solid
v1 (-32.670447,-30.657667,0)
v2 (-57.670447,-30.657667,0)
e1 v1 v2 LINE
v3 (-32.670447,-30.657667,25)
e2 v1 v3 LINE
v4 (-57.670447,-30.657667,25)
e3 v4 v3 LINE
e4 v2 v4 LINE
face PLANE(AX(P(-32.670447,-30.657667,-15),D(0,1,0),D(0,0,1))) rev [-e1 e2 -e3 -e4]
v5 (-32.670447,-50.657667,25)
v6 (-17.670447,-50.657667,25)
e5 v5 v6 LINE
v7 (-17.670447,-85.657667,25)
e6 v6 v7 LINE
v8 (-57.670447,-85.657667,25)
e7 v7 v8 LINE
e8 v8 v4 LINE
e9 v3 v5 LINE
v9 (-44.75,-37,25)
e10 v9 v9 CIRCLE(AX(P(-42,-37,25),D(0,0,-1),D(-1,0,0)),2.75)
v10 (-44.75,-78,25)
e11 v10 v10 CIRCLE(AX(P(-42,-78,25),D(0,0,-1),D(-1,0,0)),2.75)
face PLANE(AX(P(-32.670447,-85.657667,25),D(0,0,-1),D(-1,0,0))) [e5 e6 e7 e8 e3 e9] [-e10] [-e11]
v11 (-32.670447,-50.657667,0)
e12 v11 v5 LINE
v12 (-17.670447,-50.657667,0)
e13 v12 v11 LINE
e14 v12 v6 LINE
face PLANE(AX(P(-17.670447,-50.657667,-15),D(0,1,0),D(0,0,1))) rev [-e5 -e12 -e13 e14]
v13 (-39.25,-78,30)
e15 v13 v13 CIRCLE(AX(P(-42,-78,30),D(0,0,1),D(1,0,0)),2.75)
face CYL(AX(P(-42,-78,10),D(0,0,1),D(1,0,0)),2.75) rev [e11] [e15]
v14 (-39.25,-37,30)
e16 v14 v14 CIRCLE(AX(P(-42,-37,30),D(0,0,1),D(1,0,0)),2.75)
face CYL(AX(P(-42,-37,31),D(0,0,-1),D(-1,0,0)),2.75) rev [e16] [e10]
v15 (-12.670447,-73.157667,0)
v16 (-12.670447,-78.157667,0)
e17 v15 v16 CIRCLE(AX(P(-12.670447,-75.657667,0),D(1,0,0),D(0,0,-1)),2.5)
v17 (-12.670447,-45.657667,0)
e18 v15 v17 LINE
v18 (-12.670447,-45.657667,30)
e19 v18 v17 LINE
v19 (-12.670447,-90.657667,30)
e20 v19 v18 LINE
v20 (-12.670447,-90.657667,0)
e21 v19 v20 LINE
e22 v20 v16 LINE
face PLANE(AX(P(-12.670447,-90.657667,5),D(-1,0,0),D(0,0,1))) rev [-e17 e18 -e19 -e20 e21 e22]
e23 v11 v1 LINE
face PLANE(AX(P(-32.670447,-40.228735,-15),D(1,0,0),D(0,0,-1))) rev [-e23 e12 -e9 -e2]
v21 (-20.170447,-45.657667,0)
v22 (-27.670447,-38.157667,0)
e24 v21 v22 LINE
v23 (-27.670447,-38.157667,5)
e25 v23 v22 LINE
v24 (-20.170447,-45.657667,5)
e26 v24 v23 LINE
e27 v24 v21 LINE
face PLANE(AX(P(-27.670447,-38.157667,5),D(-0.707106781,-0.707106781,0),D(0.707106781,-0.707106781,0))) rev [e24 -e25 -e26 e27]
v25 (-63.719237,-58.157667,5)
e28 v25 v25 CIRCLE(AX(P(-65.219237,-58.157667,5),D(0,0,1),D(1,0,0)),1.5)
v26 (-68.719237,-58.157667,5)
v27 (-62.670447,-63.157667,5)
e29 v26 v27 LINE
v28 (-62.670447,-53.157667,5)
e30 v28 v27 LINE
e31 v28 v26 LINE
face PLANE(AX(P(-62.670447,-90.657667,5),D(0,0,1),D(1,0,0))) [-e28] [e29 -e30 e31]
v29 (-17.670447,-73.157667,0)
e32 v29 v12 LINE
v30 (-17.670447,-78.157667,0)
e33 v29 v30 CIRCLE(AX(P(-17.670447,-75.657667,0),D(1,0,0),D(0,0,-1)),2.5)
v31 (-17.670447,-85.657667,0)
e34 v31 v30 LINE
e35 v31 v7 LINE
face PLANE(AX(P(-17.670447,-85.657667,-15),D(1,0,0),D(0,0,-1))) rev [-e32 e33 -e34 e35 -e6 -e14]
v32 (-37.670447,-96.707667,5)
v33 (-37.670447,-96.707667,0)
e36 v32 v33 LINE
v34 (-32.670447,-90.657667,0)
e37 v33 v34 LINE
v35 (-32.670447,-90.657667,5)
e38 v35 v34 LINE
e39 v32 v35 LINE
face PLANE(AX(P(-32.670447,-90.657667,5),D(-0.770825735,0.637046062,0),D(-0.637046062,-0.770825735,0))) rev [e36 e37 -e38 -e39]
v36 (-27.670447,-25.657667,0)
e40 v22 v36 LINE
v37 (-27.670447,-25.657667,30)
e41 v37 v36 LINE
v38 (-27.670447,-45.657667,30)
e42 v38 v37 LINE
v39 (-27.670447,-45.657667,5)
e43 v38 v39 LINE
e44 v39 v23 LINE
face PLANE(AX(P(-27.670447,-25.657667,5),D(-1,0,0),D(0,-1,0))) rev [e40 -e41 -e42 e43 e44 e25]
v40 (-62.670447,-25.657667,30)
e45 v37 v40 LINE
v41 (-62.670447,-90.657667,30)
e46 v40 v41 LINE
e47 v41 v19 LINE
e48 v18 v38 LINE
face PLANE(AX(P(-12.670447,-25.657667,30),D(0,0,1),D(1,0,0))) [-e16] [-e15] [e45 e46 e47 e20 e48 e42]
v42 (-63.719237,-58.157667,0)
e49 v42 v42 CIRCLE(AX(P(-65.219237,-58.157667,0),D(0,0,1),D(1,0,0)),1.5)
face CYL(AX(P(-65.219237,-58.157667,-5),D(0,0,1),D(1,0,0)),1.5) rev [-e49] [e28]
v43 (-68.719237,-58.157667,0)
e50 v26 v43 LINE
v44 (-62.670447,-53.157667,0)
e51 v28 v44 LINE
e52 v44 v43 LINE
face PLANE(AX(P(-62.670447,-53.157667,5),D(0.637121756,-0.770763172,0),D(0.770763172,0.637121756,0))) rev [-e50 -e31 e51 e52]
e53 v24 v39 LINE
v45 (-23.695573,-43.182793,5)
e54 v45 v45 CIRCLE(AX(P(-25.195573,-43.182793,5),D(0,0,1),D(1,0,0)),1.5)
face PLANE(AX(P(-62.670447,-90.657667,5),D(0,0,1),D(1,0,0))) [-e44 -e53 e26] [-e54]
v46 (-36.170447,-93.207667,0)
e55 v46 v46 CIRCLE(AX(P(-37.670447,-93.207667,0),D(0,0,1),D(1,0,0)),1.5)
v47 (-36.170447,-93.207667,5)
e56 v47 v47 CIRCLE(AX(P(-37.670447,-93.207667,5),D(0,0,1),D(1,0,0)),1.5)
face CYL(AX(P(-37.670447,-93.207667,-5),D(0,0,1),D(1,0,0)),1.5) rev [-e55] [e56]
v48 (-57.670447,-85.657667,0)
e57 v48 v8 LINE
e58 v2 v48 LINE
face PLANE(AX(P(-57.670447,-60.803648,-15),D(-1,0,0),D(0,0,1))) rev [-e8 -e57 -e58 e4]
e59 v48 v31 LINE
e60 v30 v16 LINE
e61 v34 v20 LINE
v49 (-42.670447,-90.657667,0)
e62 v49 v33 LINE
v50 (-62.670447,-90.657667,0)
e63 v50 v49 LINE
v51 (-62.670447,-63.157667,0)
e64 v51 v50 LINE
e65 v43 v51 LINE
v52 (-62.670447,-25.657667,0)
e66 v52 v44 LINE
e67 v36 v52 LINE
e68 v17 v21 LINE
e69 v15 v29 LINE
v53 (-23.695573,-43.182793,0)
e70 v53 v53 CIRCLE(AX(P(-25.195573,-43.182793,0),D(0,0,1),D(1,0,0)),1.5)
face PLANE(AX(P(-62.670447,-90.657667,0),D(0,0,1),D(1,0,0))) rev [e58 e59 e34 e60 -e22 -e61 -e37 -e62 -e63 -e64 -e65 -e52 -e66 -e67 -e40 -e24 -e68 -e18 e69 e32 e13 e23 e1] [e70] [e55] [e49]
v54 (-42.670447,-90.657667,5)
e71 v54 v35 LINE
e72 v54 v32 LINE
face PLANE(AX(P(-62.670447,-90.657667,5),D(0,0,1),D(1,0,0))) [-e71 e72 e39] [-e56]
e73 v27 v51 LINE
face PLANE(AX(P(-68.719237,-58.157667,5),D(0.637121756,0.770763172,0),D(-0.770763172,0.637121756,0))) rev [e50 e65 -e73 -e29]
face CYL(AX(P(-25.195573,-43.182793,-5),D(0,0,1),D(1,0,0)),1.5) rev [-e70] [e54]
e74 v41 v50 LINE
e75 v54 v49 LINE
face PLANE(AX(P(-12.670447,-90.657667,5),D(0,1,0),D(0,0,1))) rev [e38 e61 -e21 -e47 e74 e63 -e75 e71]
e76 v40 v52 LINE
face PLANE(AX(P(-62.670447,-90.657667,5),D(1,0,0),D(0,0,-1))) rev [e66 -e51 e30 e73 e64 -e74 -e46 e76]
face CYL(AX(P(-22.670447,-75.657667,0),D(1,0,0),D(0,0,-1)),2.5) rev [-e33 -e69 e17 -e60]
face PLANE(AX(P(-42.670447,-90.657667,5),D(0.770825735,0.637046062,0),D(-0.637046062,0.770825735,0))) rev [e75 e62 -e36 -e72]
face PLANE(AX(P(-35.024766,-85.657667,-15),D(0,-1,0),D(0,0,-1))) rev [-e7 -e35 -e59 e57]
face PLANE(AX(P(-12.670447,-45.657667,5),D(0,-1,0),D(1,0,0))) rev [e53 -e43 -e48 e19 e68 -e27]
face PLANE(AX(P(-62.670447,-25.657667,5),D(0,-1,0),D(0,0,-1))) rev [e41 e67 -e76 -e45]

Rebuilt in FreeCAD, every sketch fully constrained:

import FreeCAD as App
import Part
import Sketcher

V = App.Vector
Q = App.Units.Quantity

doc = App.newDocument("Part")
body = doc.addObject("PartDesign::Body", "Body")

sketch1 = body.newObject("Sketcher::SketchObject", "Sketch")
sketch1.AttachmentSupport = (doc.getObject("XY_Plane"), [""])
sketch1.MapMode = "FlatFace"
sketch1.addGeometry([
    Part.LineSegment(V(-28, -38, 0), V(-28, -26, 0)),
    Part.LineSegment(V(-28, -26, 0), V(-63, -26, 0)),
    Part.LineSegment(V(-63, -26, 0), V(-63, -53, 0)),
    Part.LineSegment(V(-63, -53, 0), V(-69, -58, 0)),
    Part.LineSegment(V(-69, -58, 0), V(-63, -63, 0)),
    Part.LineSegment(V(-63, -63, 0), V(-63, -91, 0)),
    Part.LineSegment(V(-63, -91, 0), V(-43, -91, 0)),
    Part.LineSegment(V(-43, -91, 0), V(-38, -97, 0)),
    Part.LineSegment(V(-38, -97, 0), V(-33, -91, 0)),
    Part.LineSegment(V(-33, -91, 0), V(-13, -91, 0)),
    Part.LineSegment(V(-13, -91, 0), V(-13, -46, 0)),
    Part.LineSegment(V(-13, -46, 0), V(-20, -46, 0)),
    Part.LineSegment(V(-20, -46, 0), V(-28, -38, 0)),
], False)
sketch1.addConstraint([
    Sketcher.Constraint("Coincident", 0, 2, 1, 1),
    Sketcher.Constraint("Coincident", 1, 2, 2, 1),
    Sketcher.Constraint("Coincident", 2, 2, 3, 1),
    Sketcher.Constraint("Coincident", 3, 2, 4, 1),
    Sketcher.Constraint("Coincident", 4, 2, 5, 1),
    Sketcher.Constraint("Coincident", 5, 2, 6, 1),
    Sketcher.Constraint("Coincident", 6, 2, 7, 1),
    Sketcher.Constraint("Coincident", 7, 2, 8, 1),
    Sketcher.Constraint("Coincident", 8, 2, 9, 1),
    Sketcher.Constraint("Coincident", 9, 2, 10, 1),
    Sketcher.Constraint("Coincident", 10, 2, 11, 1),
    Sketcher.Constraint("Coincident", 11, 2, 12, 1),
    Sketcher.Constraint("Coincident", 12, 2, 0, 1),
    Sketcher.Constraint("Vertical", 0),
    Sketcher.Constraint("Horizontal", 1),
    Sketcher.Constraint("Vertical", 2),
    Sketcher.Constraint("Vertical", 5),
    Sketcher.Constraint("Horizontal", 6),
    Sketcher.Constraint("Horizontal", 9),
    Sketcher.Constraint("Vertical", 10),
    Sketcher.Constraint("Horizontal", 11),
    Sketcher.Constraint("Horizontal", 6, 2, 8, 2),
    Sketcher.Constraint("Vertical", 2, 2, 4, 2),
    Sketcher.Constraint("Equal", 6, 9),
    Sketcher.Constraint("Equal", 2, 5),
    Sketcher.Constraint("Equal", 3, 4),
    Sketcher.Constraint("Equal", 7, 8),
    Sketcher.Constraint("DistanceX", 1, 2, 1, 1, 35.0),
    Sketcher.Constraint("DistanceX", 6, 1, 6, 2, 20.0),
    Sketcher.Constraint("DistanceY", 10, 1, 10, 2, 45.0),
    Sketcher.Constraint("Angle", 12, Q("135 deg")),
    Sketcher.Constraint("DistanceX", 11, 2, 11, 1, 7.5),
    Sketcher.Constraint("DistanceY", 0, 1, 0, 2, 12.5),
    Sketcher.Constraint("DistanceY", 2, 2, 2, 1, 27.5),
    Sketcher.Constraint("DistanceY", 3, 2, 2, 2, 5.0),
    Sketcher.Constraint("DistanceY", 7, 2, 6, 2, 6.05),
    Sketcher.Constraint("DistanceX", 3, 2, 2, 2, 6.04879),
    Sketcher.Constraint("DistanceX", 0, 2, -1, 1, 27.670447),
    Sketcher.Constraint("DistanceY", 0, 2, -1, 1, 25.657667),
])
pad1 = body.newObject("PartDesign::Pad", "Pad")
pad1.Profile = sketch1
pad1.Length = 5

sketch2 = body.newObject("Sketcher::SketchObject", "Sketch001")
sketch2.AttachmentSupport = (doc.getObject("XY_Plane"), [""])
sketch2.MapMode = "FlatFace"
sketch2.AttachmentOffset = App.Placement(V(0, 0, 5), App.Rotation())
sketch2.addGeometry([
    Part.Circle(V(-65.2, -58.2, 0), V(0, 0, 1), 1.5),
    Part.Circle(V(-37.7, -93.2, 0), V(0, 0, 1), 1.5),
    Part.Circle(V(-25.2, -43.2, 0), V(0, 0, 1), 1.5),
], False)
sketch2.addConstraint([
    Sketcher.Constraint("Equal", 0, 1),
    Sketcher.Constraint("Equal", 1, 2),
    Sketcher.Constraint("Diameter", 0, 3.0),
    Sketcher.Constraint("DistanceY", 1, 3, 0, 3, 35.05),
    Sketcher.Constraint("DistanceX", 0, 3, 1, 3, 27.54879),
    Sketcher.Constraint("DistanceX", 0, 3, -1, 1, 65.219237),
    Sketcher.Constraint("DistanceY", 0, 3, -1, 1, 58.157667),
    Sketcher.Constraint("DistanceX", 2, 3, -1, 1, 25.195573),
    Sketcher.Constraint("DistanceY", 2, 3, -1, 1, 43.182793),
])
pocket1 = body.newObject("PartDesign::Pocket", "Pocket")
pocket1.Profile = sketch2
pocket1.Length = 10

sketch3 = body.newObject("Sketcher::SketchObject", "Sketch002")
sketch3.AttachmentSupport = (doc.getObject("XY_Plane"), [""])
sketch3.MapMode = "FlatFace"
sketch3.AttachmentOffset = App.Placement(V(0, 0, 5), App.Rotation())
sketch3.addGeometry([
    Part.LineSegment(V(-63, -26, 0), V(-63, -91, 0)),
    Part.LineSegment(V(-63, -91, 0), V(-13, -91, 0)),
    Part.LineSegment(V(-13, -91, 0), V(-13, -46, 0)),
    Part.LineSegment(V(-13, -46, 0), V(-28, -46, 0)),
    Part.LineSegment(V(-28, -46, 0), V(-28, -26, 0)),
    Part.LineSegment(V(-28, -26, 0), V(-63, -26, 0)),
], False)
sketch3.addConstraint([
    Sketcher.Constraint("Coincident", 0, 2, 1, 1),
    Sketcher.Constraint("Coincident", 1, 2, 2, 1),
    Sketcher.Constraint("Coincident", 2, 2, 3, 1),
    Sketcher.Constraint("Coincident", 3, 2, 4, 1),
    Sketcher.Constraint("Coincident", 4, 2, 5, 1),
    Sketcher.Constraint("Coincident", 5, 2, 0, 1),
    Sketcher.Constraint("Vertical", 0),
    Sketcher.Constraint("Horizontal", 1),
    Sketcher.Constraint("Vertical", 2),
    Sketcher.Constraint("Horizontal", 3),
    Sketcher.Constraint("Vertical", 4),
    Sketcher.Constraint("Horizontal", 5),
    Sketcher.Constraint("DistanceX", 1, 1, 1, 2, 50.0),
    Sketcher.Constraint("DistanceX", 3, 2, 3, 1, 15.0),
    Sketcher.Constraint("DistanceY", 0, 2, 0, 1, 65.0),
    Sketcher.Constraint("DistanceY", 2, 1, 2, 2, 45.0),
    Sketcher.Constraint("DistanceX", 0, 2, -1, 1, 62.670447),
    Sketcher.Constraint("DistanceY", 0, 2, -1, 1, 90.657667),
])
pad2 = body.newObject("PartDesign::Pad", "Pad001")
pad2.Profile = sketch3
pad2.Length = 25

sketch4 = body.newObject("Sketcher::SketchObject", "Sketch003")
sketch4.AttachmentSupport = (doc.getObject("XY_Plane"), [""])
sketch4.MapMode = "FlatFace"
sketch4.AttachmentOffset = App.Placement(V(0, 0, 5), App.Rotation())
sketch4.addGeometry([
    Part.LineSegment(V(-58, -86, 0), V(-18, -86, 0)),
    Part.LineSegment(V(-18, -86, 0), V(-18, -51, 0)),
    Part.LineSegment(V(-18, -51, 0), V(-33, -51, 0)),
    Part.LineSegment(V(-33, -51, 0), V(-33, -31, 0)),
    Part.LineSegment(V(-33, -31, 0), V(-58, -31, 0)),
    Part.LineSegment(V(-58, -31, 0), V(-58, -86, 0)),
], False)
sketch4.addConstraint([
    Sketcher.Constraint("Coincident", 0, 2, 1, 1),
    Sketcher.Constraint("Coincident", 1, 2, 2, 1),
    Sketcher.Constraint("Coincident", 2, 2, 3, 1),
    Sketcher.Constraint("Coincident", 3, 2, 4, 1),
    Sketcher.Constraint("Coincident", 4, 2, 5, 1),
    Sketcher.Constraint("Coincident", 5, 2, 0, 1),
    Sketcher.Constraint("Horizontal", 0),
    Sketcher.Constraint("Vertical", 1),
    Sketcher.Constraint("Horizontal", 2),
    Sketcher.Constraint("Vertical", 3),
    Sketcher.Constraint("Horizontal", 4),
    Sketcher.Constraint("Vertical", 5),
    Sketcher.Constraint("DistanceX", 0, 1, 0, 2, 40.0),
    Sketcher.Constraint("DistanceX", 2, 2, 2, 1, 15.0),
    Sketcher.Constraint("DistanceY", 1, 1, 1, 2, 35.0),
    Sketcher.Constraint("DistanceY", 3, 1, 3, 2, 20.0),
    Sketcher.Constraint("DistanceX", 0, 2, -1, 1, 17.670447),
    Sketcher.Constraint("DistanceY", 0, 2, -1, 1, 85.657667),
])
pocket2 = body.newObject("PartDesign::Pocket", "Pocket001")
pocket2.Profile = sketch4
pocket2.Length = 20

sketch5 = body.newObject("Sketcher::SketchObject", "Sketch004")
sketch5.AttachmentSupport = (doc.getObject("XY_Plane"), [""])
sketch5.MapMode = "FlatFace"
sketch5.AttachmentOffset = App.Placement(V(0, 0, 5), App.Rotation())
sketch5.addGeometry([
    Part.LineSegment(V(-58, -31, 0), V(-33, -31, 0)),
    Part.LineSegment(V(-33, -31, 0), V(-33, -51, 0)),
    Part.LineSegment(V(-33, -51, 0), V(-18, -51, 0)),
    Part.LineSegment(V(-18, -51, 0), V(-18, -86, 0)),
    Part.LineSegment(V(-18, -86, 0), V(-58, -86, 0)),
    Part.LineSegment(V(-58, -86, 0), V(-58, -31, 0)),
], False)
sketch5.addConstraint([
    Sketcher.Constraint("Coincident", 0, 2, 1, 1),
    Sketcher.Constraint("Coincident", 1, 2, 2, 1),
    Sketcher.Constraint("Coincident", 2, 2, 3, 1),
    Sketcher.Constraint("Coincident", 3, 2, 4, 1),
    Sketcher.Constraint("Coincident", 4, 2, 5, 1),
    Sketcher.Constraint("Coincident", 5, 2, 0, 1),
    Sketcher.Constraint("Horizontal", 0),
    Sketcher.Constraint("Vertical", 1),
    Sketcher.Constraint("Horizontal", 2),
    Sketcher.Constraint("Vertical", 3),
    Sketcher.Constraint("Horizontal", 4),
    Sketcher.Constraint("Vertical", 5),
    Sketcher.Constraint("DistanceX", 0, 1, 0, 2, 25.0),
    Sketcher.Constraint("DistanceX", 2, 1, 2, 2, 15.0),
    Sketcher.Constraint("DistanceY", 1, 2, 1, 1, 20.0),
    Sketcher.Constraint("DistanceY", 3, 2, 3, 1, 35.0),
    Sketcher.Constraint("DistanceX", 0, 2, -1, 1, 32.670447),
    Sketcher.Constraint("DistanceY", 0, 2, -1, 1, 30.657667),
])
pocket3 = body.newObject("PartDesign::Pocket", "Pocket002")
pocket3.Profile = sketch5
pocket3.Length = 20
pocket3.Reversed = True

sketch6 = body.newObject("Sketcher::SketchObject", "Sketch005")
sketch6.AttachmentSupport = (doc.getObject("XY_Plane"), [""])
sketch6.MapMode = "FlatFace"
sketch6.AttachmentOffset = App.Placement(V(0, 0, 30), App.Rotation())
sketch6.addGeometry([
    Part.Circle(V(45, -75.7, 0), V(0, 0, 1), 2.8),
    Part.Circle(V(-42, -78, 0), V(0, 0, 1), 2.8),
], False)
sketch6.addConstraint([
    Sketcher.Constraint("Equal", 0, 1),
    Sketcher.Constraint("Diameter", 0, 5.5),
    Sketcher.Constraint("DistanceX", -1, 1, 0, 3, 45.0),
    Sketcher.Constraint("DistanceX", 1, 3, -1, 1, 42.0),
    Sketcher.Constraint("DistanceY", 1, 3, -1, 1, 78.0),
    Sketcher.Constraint("DistanceY", 0, 3, -1, 1, 75.657667),
])
pocket4 = body.newObject("PartDesign::Pocket", "Pocket003")
pocket4.Profile = sketch6
pocket4.Length = 20

sketch7 = body.newObject("Sketcher::SketchObject", "Sketch006")
sketch7.AttachmentSupport = (doc.getObject("YZ_Plane"), [""])
sketch7.MapMode = "FlatFace"
sketch7.AttachmentOffset = App.Placement(V(0, 0, -12.670447), App.Rotation())
sketch7.addGeometry(Part.Circle(V(-75.7, 0, 0), V(0, 0, 1), 2.5), False)
sketch7.addConstraint([
    Sketcher.Constraint("PointOnObject", 0, 3, -1),
    Sketcher.Constraint("Diameter", 0, 5.0),
    Sketcher.Constraint("DistanceX", 0, 3, -1, 1, 75.657667),
])
pocket5 = body.newObject("PartDesign::Pocket", "Pocket004")
pocket5.Profile = sketch7
pocket5.Length = 10

sketch8 = body.newObject("Sketcher::SketchObject", "Sketch007")
sketch8.AttachmentSupport = (doc.getObject("XY_Plane"), [""])
sketch8.MapMode = "FlatFace"
sketch8.AttachmentOffset = App.Placement(V(0, 0, 25), App.Rotation())
sketch8.addGeometry(Part.Circle(V(-42, -37, 0), V(0, 0, 1), 2.8), False)
sketch8.addConstraint([
    Sketcher.Constraint("Diameter", 0, 5.5),
    Sketcher.Constraint("DistanceX", 0, 3, -1, 1, 42.0),
    Sketcher.Constraint("DistanceY", 0, 3, -1, 1, 37.0),
])
pocket6 = body.newObject("PartDesign::Pocket", "Pocket005")
pocket6.Profile = sketch8
pocket6.Length = 6
pocket6.Reversed = True

doc.recompute()
